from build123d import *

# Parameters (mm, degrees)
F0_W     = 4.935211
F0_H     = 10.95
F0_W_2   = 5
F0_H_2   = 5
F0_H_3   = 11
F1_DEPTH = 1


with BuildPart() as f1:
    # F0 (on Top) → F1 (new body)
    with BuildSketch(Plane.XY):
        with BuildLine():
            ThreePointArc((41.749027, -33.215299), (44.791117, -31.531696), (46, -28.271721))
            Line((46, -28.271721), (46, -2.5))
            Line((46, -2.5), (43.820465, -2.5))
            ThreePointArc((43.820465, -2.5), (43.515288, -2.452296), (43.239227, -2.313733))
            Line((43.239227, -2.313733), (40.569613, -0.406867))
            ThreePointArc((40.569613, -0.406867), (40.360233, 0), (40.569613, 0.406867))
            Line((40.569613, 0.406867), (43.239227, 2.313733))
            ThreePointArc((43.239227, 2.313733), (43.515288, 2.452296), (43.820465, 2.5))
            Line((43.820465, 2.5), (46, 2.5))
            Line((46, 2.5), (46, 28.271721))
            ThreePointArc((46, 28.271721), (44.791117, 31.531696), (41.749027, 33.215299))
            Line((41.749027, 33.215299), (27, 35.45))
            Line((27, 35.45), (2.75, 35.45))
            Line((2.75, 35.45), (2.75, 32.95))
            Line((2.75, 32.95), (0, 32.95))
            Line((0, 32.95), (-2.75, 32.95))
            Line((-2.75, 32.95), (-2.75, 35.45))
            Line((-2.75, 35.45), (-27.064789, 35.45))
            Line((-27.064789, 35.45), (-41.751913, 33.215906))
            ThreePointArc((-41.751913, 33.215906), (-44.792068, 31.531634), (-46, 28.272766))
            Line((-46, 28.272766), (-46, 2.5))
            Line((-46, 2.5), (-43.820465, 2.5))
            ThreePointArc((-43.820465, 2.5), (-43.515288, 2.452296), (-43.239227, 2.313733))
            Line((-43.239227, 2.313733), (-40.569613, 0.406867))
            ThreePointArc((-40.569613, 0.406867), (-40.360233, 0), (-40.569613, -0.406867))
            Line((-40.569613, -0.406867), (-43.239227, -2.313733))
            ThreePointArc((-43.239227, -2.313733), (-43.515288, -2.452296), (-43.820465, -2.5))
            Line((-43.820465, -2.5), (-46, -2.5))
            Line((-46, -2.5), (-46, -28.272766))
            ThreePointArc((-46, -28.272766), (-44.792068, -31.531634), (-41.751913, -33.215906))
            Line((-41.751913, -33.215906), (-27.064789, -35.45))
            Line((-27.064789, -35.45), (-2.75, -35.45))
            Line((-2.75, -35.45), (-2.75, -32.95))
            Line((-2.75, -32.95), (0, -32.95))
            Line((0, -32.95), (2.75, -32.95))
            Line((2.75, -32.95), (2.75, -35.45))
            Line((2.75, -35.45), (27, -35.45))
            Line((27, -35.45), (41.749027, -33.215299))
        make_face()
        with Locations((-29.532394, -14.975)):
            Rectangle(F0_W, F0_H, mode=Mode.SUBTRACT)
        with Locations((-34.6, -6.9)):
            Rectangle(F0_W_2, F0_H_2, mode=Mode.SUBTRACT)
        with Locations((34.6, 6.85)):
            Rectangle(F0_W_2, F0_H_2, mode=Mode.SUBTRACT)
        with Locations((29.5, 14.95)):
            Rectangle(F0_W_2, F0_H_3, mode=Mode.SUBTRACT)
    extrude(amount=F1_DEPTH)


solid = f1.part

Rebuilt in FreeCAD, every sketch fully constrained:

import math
import FreeCAD as App
import Part
import Sketcher
from FreeCAD import Vector


def add_polygon(sketch, points):
    """Adds a closed chain of lines whose ends are joined by coincident constraints."""
    first, n = sketch.GeometryCount, len(points)
    for a, b in zip(points, points[1:] + points[:1]):
        sketch.addGeometry(Part.LineSegment(App.Vector(*a, 0), App.Vector(*b, 0)), False)
    for i in range(n):
        sketch.addConstraint(Sketcher.Constraint("Coincident", first + i, 2, first + (i + 1) % n, 1))

doc = App.newDocument("Part")
body = doc.addObject("PartDesign::Body", "Body")

# Sketch on XY plane
sketch1 = doc.addObject("Sketcher::SketchObject", "Sketch")
body.addObject(sketch1)
sketch1.AttachmentSupport = (doc.XY_Plane, [""])
sketch1.MapMode = "FlatFace"
sketch1.addGeometry(Part.ArcOfCircle(Part.Circle(Vector(41.000001, -28.271722, 0), Vector(0, 0, 1), 4.999999), math.radians(-81.384356), math.radians(0.000011)), False)  # 0
sketch1.addGeometry(Part.LineSegment(Vector(46, -28.271721, 0), Vector(46, -2.5, 0)), False)  # 1
sketch1.addGeometry(Part.LineSegment(Vector(46, -2.5, 0), Vector(43.820465, -2.5, 0)), False)  # 2
sketch1.addGeometry(Part.ArcOfCircle(Part.Circle(Vector(43.820462, -1.500012, 0), Vector(0, 0, 1), 0.999988), math.radians(-125.537943), math.radians(-89.99983)), False)  # 3
sketch1.addGeometry(Part.LineSegment(Vector(43.239227, -2.313733, 0), Vector(40.569613, -0.406867, 0)), False)  # 4
sketch1.addGeometry(Part.ArcOfCircle(Part.Circle(Vector(40.860235, 0, 0), Vector(0, 0, 1), 0.500002), math.radians(125.537909), math.radians(234.462091)), False)  # 5
sketch1.addGeometry(Part.LineSegment(Vector(40.569613, 0.406867, 0), Vector(43.239227, 2.313733, 0)), False)  # 6
sketch1.addGeometry(Part.ArcOfCircle(Part.Circle(Vector(43.820462, 1.500012, 0), Vector(0, 0, 1), 0.999988), math.radians(89.99983), math.radians(125.537943)), False)  # 7
sketch1.addGeometry(Part.LineSegment(Vector(43.820465, 2.5, 0), Vector(46, 2.5, 0)), False)  # 8
sketch1.addGeometry(Part.LineSegment(Vector(46, 2.5, 0), Vector(46, 28.271721, 0)), False)  # 9
sketch1.addGeometry(Part.ArcOfCircle(Part.Circle(Vector(41.000001, 28.271722, 0), Vector(0, 0, 1), 4.999999), math.radians(-0.000011), math.radians(81.384356)), False)  # 10
sketch1.addGeometry(Part.LineSegment(Vector(41.749027, 33.215299, 0), Vector(27, 35.45, 0)), False)  # 11
sketch1.addGeometry(Part.LineSegment(Vector(27, 35.45, 0), Vector(2.75, 35.45, 0)), False)  # 12
sketch1.addGeometry(Part.LineSegment(Vector(2.75, 35.45, 0), Vector(2.75, 32.95, 0)), False)  # 13
sketch1.addGeometry(Part.LineSegment(Vector(2.75, 32.95, 0), Vector(-2.75, 32.95, 0)), False)  # 14
sketch1.addGeometry(Part.LineSegment(Vector(-2.75, 32.95, 0), Vector(-2.75, 35.45, 0)), False)  # 15
sketch1.addGeometry(Part.LineSegment(Vector(-2.75, 35.45, 0), Vector(-27.064789, 35.45, 0)), False)  # 16
sketch1.addGeometry(Part.LineSegment(Vector(-27.064789, 35.45, 0), Vector(-41.751913, 33.215906, 0)), False)  # 17
sketch1.addGeometry(Part.ArcOfCircle(Part.Circle(Vector(-40.999999, 28.272766, 0), Vector(0, 0, 1), 5.000001), math.radians(98.649111), math.radians(179.999996)), False)  # 18
sketch1.addGeometry(Part.LineSegment(Vector(-46, 28.272766, 0), Vector(-46, 2.5, 0)), False)  # 19
sketch1.addGeometry(Part.LineSegment(Vector(-46, 2.5, 0), Vector(-43.820465, 2.5, 0)), False)  # 20
sketch1.addGeometry(Part.ArcOfCircle(Part.Circle(Vector(-43.820462, 1.500012, 0), Vector(0, 0, 1), 0.999988), math.radians(54.462057), math.radians(90.00017)), False)  # 21
sketch1.addGeometry(Part.LineSegment(Vector(-43.239227, 2.313733, 0), Vector(-40.569613, 0.406867, 0)), False)  # 22
sketch1.addGeometry(Part.ArcOfCircle(Part.Circle(Vector(-40.860235, 0, 0), Vector(0, 0, 1), 0.500002), math.radians(-54.462091), math.radians(54.462091)), False)  # 23
sketch1.addGeometry(Part.LineSegment(Vector(-40.569613, -0.406867, 0), Vector(-43.239227, -2.313733, 0)), False)  # 24
sketch1.addGeometry(Part.ArcOfCircle(Part.Circle(Vector(-43.820462, -1.500012, 0), Vector(0, 0, 1), 0.999988), math.radians(-90.00017), math.radians(-54.462057)), False)  # 25
sketch1.addGeometry(Part.LineSegment(Vector(-43.820465, -2.5, 0), Vector(-46, -2.5, 0)), False)  # 26
sketch1.addGeometry(Part.LineSegment(Vector(-46, -2.5, 0), Vector(-46, -28.272766, 0)), False)  # 27
sketch1.addGeometry(Part.ArcOfCircle(Part.Circle(Vector(-40.999999, -28.272766, 0), Vector(0, 0, 1), 5.000001), math.radians(-179.999996), math.radians(-98.649111)), False)  # 28
sketch1.addGeometry(Part.LineSegment(Vector(-41.751913, -33.215906, 0), Vector(-27.064789, -35.45, 0)), False)  # 29
sketch1.addGeometry(Part.LineSegment(Vector(-27.064789, -35.45, 0), Vector(-2.75, -35.45, 0)), False)  # 30
sketch1.addGeometry(Part.LineSegment(Vector(-2.75, -35.45, 0), Vector(-2.75, -32.95, 0)), False)  # 31
sketch1.addGeometry(Part.LineSegment(Vector(-2.75, -32.95, 0), Vector(2.75, -32.95, 0)), False)  # 32
sketch1.addGeometry(Part.LineSegment(Vector(2.75, -32.95, 0), Vector(2.75, -35.45, 0)), False)  # 33
sketch1.addGeometry(Part.LineSegment(Vector(2.75, -35.45, 0), Vector(27, -35.45, 0)), False)  # 34
sketch1.addGeometry(Part.LineSegment(Vector(27, -35.45, 0), Vector(41.749027, -33.215299, 0)), False)  # 35
add_polygon(sketch1, [(-27.064788, -20.45), (-32, -20.45), (-32, -9.5), (-27.064788, -9.5)])  # lines 36-39
add_polygon(sketch1, [(-32.1, -9.4), (-37.1, -9.4), (-37.1, -4.4), (-32.1, -4.4)])  # lines 40-43
add_polygon(sketch1, [(37.1, 4.35), (32.1, 4.35), (32.1, 9.35), (37.1, 9.35)])  # lines 44-47
add_polygon(sketch1, [(32, 9.45), (27, 9.45), (27, 20.45), (32, 20.45)])  # lines 48-51
sketch1.addConstraint([
    Sketcher.Constraint("Tangent", 0, 2, 1, 1),
    Sketcher.Constraint("Coincident", 1, 2, 2, 1),
    Sketcher.Constraint("Coincident", 2, 2, 3, 2),
    Sketcher.Constraint("Coincident", 3, 1, 4, 1),
    Sketcher.Constraint("Coincident", 4, 2, 5, 2),
    Sketcher.Constraint("Coincident", 5, 1, 6, 1),
    Sketcher.Constraint("Coincident", 6, 2, 7, 2),
    Sketcher.Constraint("Coincident", 7, 1, 8, 1),
    Sketcher.Constraint("Coincident", 8, 2, 9, 1),
    Sketcher.Constraint("Tangent", 9, 2, 10, 1),
    Sketcher.Constraint("Tangent", 10, 2, 11, 1),
    Sketcher.Constraint("Coincident", 11, 2, 12, 1),
    Sketcher.Constraint("Coincident", 12, 2, 13, 1),
    Sketcher.Constraint("Coincident", 13, 2, 14, 1),
    Sketcher.Constraint("Coincident", 14, 2, 15, 1),
    Sketcher.Constraint("Coincident", 15, 2, 16, 1),
    Sketcher.Constraint("Coincident", 16, 2, 17, 1),
    Sketcher.Constraint("Tangent", 17, 2, 18, 1),
    Sketcher.Constraint("Tangent", 18, 2, 19, 1),
    Sketcher.Constraint("Coincident", 19, 2, 20, 1),
    Sketcher.Constraint("Coincident", 20, 2, 21, 2),
    Sketcher.Constraint("Coincident", 21, 1, 22, 1),
    Sketcher.Constraint("Coincident", 22, 2, 23, 2),
    Sketcher.Constraint("Coincident", 23, 1, 24, 1),
    Sketcher.Constraint("Coincident", 24, 2, 25, 2),
    Sketcher.Constraint("Coincident", 25, 1, 26, 1),
    Sketcher.Constraint("Coincident", 26, 2, 27, 1),
    Sketcher.Constraint("Tangent", 27, 2, 28, 1),
    Sketcher.Constraint("Tangent", 28, 2, 29, 1),
    Sketcher.Constraint("Coincident", 29, 2, 30, 1),
    Sketcher.Constraint("Coincident", 30, 2, 31, 1),
    Sketcher.Constraint("Coincident", 31, 2, 32, 1),
    Sketcher.Constraint("Coincident", 32, 2, 33, 1),
    Sketcher.Constraint("Coincident", 33, 2, 34, 1),
    Sketcher.Constraint("Coincident", 34, 2, 35, 1),
    Sketcher.Constraint("Tangent", 35, 2, 0, 1),
    Sketcher.Constraint("Vertical", 1),
    Sketcher.Constraint("Horizontal", 2),
    Sketcher.Constraint("Horizontal", 8),
    Sketcher.Constraint("Vertical", 9),
    Sketcher.Constraint("Horizontal", 12),
    Sketcher.Constraint("Vertical", 13),
    Sketcher.Constraint("Horizontal", 14),
    Sketcher.Constraint("Vertical", 15),
    Sketcher.Constraint("Horizontal", 16),
    Sketcher.Constraint("Vertical", 19),
    Sketcher.Constraint("Horizontal", 20),
    Sketcher.Constraint("Horizontal", 26),
    Sketcher.Constraint("Vertical", 27),
    Sketcher.Constraint("Horizontal", 30),
    Sketcher.Constraint("Vertical", 31),
    Sketcher.Constraint("Horizontal", 32),
    Sketcher.Constraint("Vertical", 33),
    Sketcher.Constraint("Horizontal", 34),
    Sketcher.Constraint("Horizontal", 36),
    Sketcher.Constraint("Vertical", 37),
    Sketcher.Constraint("Horizontal", 38),
    Sketcher.Constraint("Vertical", 39),
    Sketcher.Constraint("Horizontal", 40),
    Sketcher.Constraint("Vertical", 41),
    Sketcher.Constraint("Horizontal", 42),
    Sketcher.Constraint("Vertical", 43),
    Sketcher.Constraint("Horizontal", 44),
    Sketcher.Constraint("Vertical", 45),
    Sketcher.Constraint("Horizontal", 46),
    Sketcher.Constraint("Vertical", 47),
    Sketcher.Constraint("Horizontal", 48),
    Sketcher.Constraint("Vertical", 49),
    Sketcher.Constraint("Horizontal", 50),
    Sketcher.Constraint("Vertical", 51),
    Sketcher.Constraint("Equal", 3, 7),
    Sketcher.Constraint("Equal", 0, 10),
    Sketcher.Constraint("Equal", 10, 18),
    Sketcher.Constraint("Equal", 7, 21),
    Sketcher.Constraint("Equal", 5, 23),
    Sketcher.Constraint("Equal", 21, 25),
    Sketcher.Constraint("Equal", 18, 28),
    Sketcher.Constraint("Symmetric", 3, 3, 21, 3, -1, 1),
    Sketcher.Constraint("Symmetric", 5, 3, 23, 3, -1, 1),
    Sketcher.Constraint("Symmetric", 7, 3, 25, 3, -1, 1),
    Sketcher.Constraint("Symmetric", 12, 2, 30, 2, -1, 1),
    Sketcher.Constraint("Symmetric", 14, 2, 32, 2, -1, 1),
    Sketcher.Constraint("Symmetric", 36, 2, 50, 2, -1, 1),
    Sketcher.Constraint("Symmetric", 7, 3, 21, 3, -2),
    Sketcher.Constraint("Symmetric", 12, 2, 15, 2, -2),
    Sketcher.Constraint("Symmetric", 5, 1, 22, 2, -2),
    Sketcher.Constraint("Symmetric", 0, 3, 10, 3, -1),
    Sketcher.Constraint("Symmetric", 18, 3, 28, 3, -1),
    Sketcher.Constraint("Symmetric", 11, 2, 34, 2, -1),
    Sketcher.Constraint("Horizontal", 6, 2, 21, 1),
    Sketcher.Constraint("Horizontal", 4, 2, 23, 1),
    Sketcher.Constraint("Horizontal", 3, 1, 24, 2),
    Sketcher.Constraint("Vertical", 4, 2, 5, 1),
    Sketcher.Constraint("Vertical", 3, 1, 6, 2),
    Sketcher.Constraint("Vertical", 2, 2, 7, 1),
    Sketcher.Constraint("Vertical", 20, 2, 25, 1),
    Sketcher.Constraint("Vertical", 17, 2, 28, 2),
    Sketcher.Constraint("Vertical", 29, 2, 38, 2),
    Sketcher.Constraint("Vertical", 34, 2, 48, 2),
    Sketcher.Constraint("Equal", 8, 20),
    Sketcher.Constraint("Equal", 42, 44),
    Sketcher.Constraint("Equal", 46, 48),
    Sketcher.Constraint("Equal", 50, 41),
    Sketcher.Constraint("Equal", 43, 45),
    Sketcher.Constraint("Radius", 0, 4.999999),
    Sketcher.Constraint("Radius", 5, 0.500002),
    Sketcher.Constraint("DistanceX", 40, 2, 40, 1, 5.0),
    Sketcher.Constraint("DistanceY", 49, 1, 49, 2, 11.0),
    Sketcher.Constraint("DistanceX", 14, 2, 14, 1, 5.5),
    Sketcher.Constraint("DistanceY", 13, 2, 13, 1, 2.5),
    Sketcher.Constraint("DistanceX", -1, 1, 0, 3, 41.000001),
    Sketcher.Constraint("DistanceX", 18, 3, -1, 1, 40.999999),
    Sketcher.Constraint("DistanceX", -1, 1, 11, 2, 27.0),
    Sketcher.Constraint("DistanceY", 37, 1, 37, 2, 10.95),
    Sketcher.Constraint("DistanceY", 1, 2, -1, 1, 2.5),
    Sketcher.Constraint("DistanceY", 37, 2, -1, 1, 9.5),
    Sketcher.Constraint("DistanceX", 40, 2, -1, 1, 37.1),
    Sketcher.Constraint("DistanceY", 40, 2, -1, 1, 9.4),
    Sketcher.Constraint("DistanceX", -1, 1, 44, 2, 32.1),
    Sketcher.Constraint("DistanceY", -1, 1, 11, 2, 35.45),
    Sketcher.Constraint("DistanceY", -1, 1, 44, 2, 4.35),
    Sketcher.Constraint("Radius", 3, 0.999988),
    Sketcher.Constraint("DistanceX", 16, 2, 16, 1, 24.314789),
    Sketcher.Constraint("DistanceY", 1, 1, 1, 2, 25.771721),
    Sketcher.Constraint("Distance", 17, 14.856069),
    Sketcher.Constraint("DistanceX", 2, 2, 2, 1, 2.179535),
    Sketcher.Constraint("Distance", 4, 3.280698),
    Sketcher.Constraint("DistanceX", -1, 1, 3, 3, 43.820462),
    Sketcher.Constraint("DistanceX", -1, 1, 5, 3, 40.860235),
    Sketcher.Constraint("DistanceX", -1, 1, 3, 1, 43.239227),
])
pad1 = doc.addObject("PartDesign::Pad", "Pad")
body.addObject(pad1)
pad1.Profile = sketch1
pad1.Length = 1

doc.recompute()
